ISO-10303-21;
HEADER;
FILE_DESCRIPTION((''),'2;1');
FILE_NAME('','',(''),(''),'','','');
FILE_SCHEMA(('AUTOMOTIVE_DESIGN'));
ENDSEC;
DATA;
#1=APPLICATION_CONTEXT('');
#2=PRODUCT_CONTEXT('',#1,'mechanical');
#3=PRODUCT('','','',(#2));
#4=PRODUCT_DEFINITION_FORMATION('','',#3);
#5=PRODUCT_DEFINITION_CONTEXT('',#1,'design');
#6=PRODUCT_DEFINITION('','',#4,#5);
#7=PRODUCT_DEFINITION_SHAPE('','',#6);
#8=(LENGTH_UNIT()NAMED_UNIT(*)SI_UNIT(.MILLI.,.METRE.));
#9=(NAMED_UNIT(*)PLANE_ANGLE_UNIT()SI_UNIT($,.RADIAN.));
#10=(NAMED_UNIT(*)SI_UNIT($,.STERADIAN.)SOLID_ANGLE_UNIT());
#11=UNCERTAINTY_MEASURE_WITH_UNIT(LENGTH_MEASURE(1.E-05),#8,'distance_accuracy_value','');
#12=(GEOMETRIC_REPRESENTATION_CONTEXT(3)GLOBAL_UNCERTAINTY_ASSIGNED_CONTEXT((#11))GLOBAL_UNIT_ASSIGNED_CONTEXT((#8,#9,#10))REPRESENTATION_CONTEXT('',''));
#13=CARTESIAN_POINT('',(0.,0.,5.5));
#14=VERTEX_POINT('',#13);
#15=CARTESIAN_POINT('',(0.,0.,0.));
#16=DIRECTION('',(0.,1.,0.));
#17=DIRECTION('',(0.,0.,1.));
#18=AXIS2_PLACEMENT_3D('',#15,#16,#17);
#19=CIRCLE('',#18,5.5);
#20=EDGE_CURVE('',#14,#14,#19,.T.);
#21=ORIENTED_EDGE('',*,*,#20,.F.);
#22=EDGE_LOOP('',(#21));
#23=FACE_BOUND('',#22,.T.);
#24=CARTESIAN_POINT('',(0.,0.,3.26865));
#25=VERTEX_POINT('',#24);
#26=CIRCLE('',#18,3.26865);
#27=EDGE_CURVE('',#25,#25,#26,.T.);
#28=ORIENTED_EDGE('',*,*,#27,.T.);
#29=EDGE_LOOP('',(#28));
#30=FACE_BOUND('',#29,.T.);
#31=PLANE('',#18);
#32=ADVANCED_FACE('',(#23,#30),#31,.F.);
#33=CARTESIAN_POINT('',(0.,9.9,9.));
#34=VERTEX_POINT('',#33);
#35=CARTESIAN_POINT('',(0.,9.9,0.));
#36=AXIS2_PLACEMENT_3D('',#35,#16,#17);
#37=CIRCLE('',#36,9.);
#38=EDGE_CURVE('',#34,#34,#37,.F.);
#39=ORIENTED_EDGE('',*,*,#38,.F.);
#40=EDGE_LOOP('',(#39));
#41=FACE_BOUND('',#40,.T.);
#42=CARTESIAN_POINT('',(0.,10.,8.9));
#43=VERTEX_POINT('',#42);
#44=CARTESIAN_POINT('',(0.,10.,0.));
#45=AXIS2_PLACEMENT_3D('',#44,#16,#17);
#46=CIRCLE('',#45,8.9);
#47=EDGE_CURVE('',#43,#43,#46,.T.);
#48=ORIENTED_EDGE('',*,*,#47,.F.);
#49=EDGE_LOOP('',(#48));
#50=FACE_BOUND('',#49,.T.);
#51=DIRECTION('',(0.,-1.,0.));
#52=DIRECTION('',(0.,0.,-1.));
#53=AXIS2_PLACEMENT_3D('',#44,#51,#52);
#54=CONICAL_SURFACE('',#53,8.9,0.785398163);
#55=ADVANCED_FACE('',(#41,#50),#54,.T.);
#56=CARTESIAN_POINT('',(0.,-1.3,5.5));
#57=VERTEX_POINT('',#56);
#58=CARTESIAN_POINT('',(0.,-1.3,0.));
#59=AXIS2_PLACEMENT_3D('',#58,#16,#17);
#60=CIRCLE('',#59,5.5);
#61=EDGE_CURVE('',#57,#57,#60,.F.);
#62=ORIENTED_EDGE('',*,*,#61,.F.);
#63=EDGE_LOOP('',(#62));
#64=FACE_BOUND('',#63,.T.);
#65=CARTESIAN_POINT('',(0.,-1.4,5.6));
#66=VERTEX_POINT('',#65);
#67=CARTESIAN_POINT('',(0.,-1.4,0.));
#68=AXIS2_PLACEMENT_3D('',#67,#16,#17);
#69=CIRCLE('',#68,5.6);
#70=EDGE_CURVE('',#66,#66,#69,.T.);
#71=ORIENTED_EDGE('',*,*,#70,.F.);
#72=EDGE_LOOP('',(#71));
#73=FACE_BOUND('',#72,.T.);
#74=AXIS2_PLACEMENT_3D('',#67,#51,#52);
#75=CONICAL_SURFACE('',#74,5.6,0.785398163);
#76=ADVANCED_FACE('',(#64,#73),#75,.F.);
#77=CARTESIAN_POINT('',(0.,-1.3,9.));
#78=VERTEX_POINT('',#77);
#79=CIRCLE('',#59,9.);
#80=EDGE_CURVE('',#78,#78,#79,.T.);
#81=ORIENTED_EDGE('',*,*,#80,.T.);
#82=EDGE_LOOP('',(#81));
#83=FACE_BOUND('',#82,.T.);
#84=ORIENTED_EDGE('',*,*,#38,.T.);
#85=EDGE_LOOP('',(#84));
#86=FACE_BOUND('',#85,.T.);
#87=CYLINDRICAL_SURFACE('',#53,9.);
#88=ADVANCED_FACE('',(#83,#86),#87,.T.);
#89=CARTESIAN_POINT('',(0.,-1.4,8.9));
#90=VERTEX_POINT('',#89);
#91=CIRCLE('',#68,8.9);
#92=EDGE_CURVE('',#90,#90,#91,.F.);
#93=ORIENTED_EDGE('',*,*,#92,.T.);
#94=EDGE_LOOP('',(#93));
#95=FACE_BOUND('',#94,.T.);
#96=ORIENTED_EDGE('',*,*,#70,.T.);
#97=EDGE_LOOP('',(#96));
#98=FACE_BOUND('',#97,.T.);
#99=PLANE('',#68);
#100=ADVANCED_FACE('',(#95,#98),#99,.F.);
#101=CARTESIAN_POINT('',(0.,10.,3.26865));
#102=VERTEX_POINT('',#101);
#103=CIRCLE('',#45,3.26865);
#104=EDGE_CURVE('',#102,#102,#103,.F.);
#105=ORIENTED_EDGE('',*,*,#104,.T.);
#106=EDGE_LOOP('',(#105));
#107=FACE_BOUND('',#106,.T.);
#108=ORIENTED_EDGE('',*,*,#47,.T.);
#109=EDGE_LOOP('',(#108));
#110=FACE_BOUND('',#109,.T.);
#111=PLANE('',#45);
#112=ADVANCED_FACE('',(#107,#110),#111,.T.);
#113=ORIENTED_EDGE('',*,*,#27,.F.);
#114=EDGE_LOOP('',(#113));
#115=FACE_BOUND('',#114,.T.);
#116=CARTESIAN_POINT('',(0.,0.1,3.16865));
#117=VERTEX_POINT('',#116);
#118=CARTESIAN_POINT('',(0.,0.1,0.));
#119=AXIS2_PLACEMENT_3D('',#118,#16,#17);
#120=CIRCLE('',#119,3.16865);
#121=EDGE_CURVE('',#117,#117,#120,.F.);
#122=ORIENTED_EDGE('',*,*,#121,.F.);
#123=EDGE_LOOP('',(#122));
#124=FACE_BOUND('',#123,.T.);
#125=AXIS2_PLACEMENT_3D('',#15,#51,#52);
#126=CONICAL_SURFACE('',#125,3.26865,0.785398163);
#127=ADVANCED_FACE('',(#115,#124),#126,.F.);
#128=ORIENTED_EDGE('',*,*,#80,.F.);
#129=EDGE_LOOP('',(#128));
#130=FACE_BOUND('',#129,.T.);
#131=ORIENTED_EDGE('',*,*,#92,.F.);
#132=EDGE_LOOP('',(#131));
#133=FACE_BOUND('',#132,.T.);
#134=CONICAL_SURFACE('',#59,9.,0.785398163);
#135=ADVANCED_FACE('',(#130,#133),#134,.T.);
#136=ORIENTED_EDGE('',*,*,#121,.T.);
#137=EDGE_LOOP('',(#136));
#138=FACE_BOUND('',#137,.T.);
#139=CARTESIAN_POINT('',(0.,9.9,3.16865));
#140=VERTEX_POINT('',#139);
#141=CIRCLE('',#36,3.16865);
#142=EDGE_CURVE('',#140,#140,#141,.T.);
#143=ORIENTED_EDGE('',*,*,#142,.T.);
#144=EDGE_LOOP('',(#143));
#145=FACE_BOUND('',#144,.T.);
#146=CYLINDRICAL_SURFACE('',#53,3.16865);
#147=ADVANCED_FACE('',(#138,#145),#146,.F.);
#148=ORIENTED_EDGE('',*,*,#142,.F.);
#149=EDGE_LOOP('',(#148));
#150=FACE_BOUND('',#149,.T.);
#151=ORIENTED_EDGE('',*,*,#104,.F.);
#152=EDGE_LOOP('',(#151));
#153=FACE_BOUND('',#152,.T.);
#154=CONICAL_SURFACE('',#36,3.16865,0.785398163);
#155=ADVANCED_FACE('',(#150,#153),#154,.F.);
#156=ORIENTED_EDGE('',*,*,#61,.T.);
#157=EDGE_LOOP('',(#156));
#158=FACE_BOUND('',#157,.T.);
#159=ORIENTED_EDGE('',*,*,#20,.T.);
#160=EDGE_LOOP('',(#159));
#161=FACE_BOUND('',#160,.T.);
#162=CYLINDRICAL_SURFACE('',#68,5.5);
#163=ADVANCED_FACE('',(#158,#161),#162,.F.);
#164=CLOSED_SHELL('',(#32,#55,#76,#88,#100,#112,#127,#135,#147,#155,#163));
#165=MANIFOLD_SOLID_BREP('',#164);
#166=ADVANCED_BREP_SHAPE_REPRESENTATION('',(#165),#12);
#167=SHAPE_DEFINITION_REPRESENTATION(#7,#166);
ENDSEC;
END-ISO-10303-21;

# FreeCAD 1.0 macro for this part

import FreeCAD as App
import Part
import Sketcher

V = App.Vector


def edges_at(feature, points):
    """Names of the edges that pass closest to the given points."""
    edges = feature.Shape.Edges
    near = lambda p: min(range(len(edges)), key=lambda i: edges[i].distToShape(Part.Vertex(*p))[0])
    return sorted({f"Edge{near(p) + 1}" for p in points})

doc = App.newDocument("Part")
params = doc.addObject("Spreadsheet::Sheet", "Params")
for row, (alias, value) in enumerate([
    ("sketch1_diameter", "18 mm"),
    ("pad1_length", "10 mm"),
    ("sketch2_diameter", "18 mm"),
    ("sketch2_diameter2", "11 mm"),
    ("pad2_length", "1.4 mm"),
    ("chamfer_size", "0.1 mm"),
], start=1):
    params.set(f"A{row}", alias)
    params.set(f"B{row}", "=" + value)
    params.setAlias(f"B{row}", alias)

body = doc.addObject("PartDesign::Body", "Body")

sketch1 = body.newObject("Sketcher::SketchObject", "Sketch")
sketch1.AttachmentSupport = (doc.getObject("XZ_Plane"), [""])
sketch1.MapMode = "FlatFace"
sketch1.addGeometry(Part.Circle(V(0, 0, 0), V(0, 0, 1), 9), False)
sketch1.addGeometry(Part.Circle(V(0, 0, 0), V(0, 0, 1), 3.2), False)
sketch1.addConstraint(Sketcher.Constraint("Coincident", 0, 3, -1, 1))
sketch1.addConstraint(Sketcher.Constraint("Coincident", 1, 3, -1, 1))
sketch1.addConstraint(Sketcher.Constraint("Diameter", 0, 18.0))
sketch1.addConstraint(Sketcher.Constraint("Diameter", 1, 6.3373))
sketch1.setExpression("Constraints[2]", "Params.sketch1_diameter")
pad1 = body.newObject("PartDesign::Pad", "Pad")
pad1.Profile = sketch1
pad1.setExpression("Length", "Params.pad1_length")
pad1.Reversed = True

sketch2 = body.newObject("Sketcher::SketchObject", "Sketch001")
sketch2.AttachmentSupport = (doc.getObject("XZ_Plane"), [""])
sketch2.MapMode = "FlatFace"
sketch2.addGeometry(Part.Circle(V(0, 0, 0), V(0, 0, 1), 9), False)
sketch2.addGeometry(Part.Circle(V(0, 0, 0), V(0, 0, 1), 6), False)
sketch2.addConstraint(Sketcher.Constraint("Coincident", 0, 3, -1, 1))
sketch2.addConstraint(Sketcher.Constraint("Coincident", 1, 3, -1, 1))
sketch2.addConstraint(Sketcher.Constraint("Diameter", 0, 18.0))
sketch2.addConstraint(Sketcher.Constraint("Diameter", 1, 11.0))
sketch2.setExpression("Constraints[2]", "Params.sketch2_diameter")
sketch2.setExpression("Constraints[3]", "Params.sketch2_diameter2")
pad2 = body.newObject("PartDesign::Pad", "Pad001")
pad2.Profile = sketch2
pad2.setExpression("Length", "Params.pad2_length")
doc.recompute()

chamfer = body.newObject("PartDesign::Chamfer", "Chamfer")
chamfer.Base = (pad2, edges_at(pad2, [
    (-3.169, 0, 0),
    (-9, 10, 0),
    (-3.169, 10, 0),
    (-9, -1.4, 0),
    (-5.5, -1.4, 0),
]))
chamfer.setExpression("Size", "Params.chamfer_size")

doc.recompute()
